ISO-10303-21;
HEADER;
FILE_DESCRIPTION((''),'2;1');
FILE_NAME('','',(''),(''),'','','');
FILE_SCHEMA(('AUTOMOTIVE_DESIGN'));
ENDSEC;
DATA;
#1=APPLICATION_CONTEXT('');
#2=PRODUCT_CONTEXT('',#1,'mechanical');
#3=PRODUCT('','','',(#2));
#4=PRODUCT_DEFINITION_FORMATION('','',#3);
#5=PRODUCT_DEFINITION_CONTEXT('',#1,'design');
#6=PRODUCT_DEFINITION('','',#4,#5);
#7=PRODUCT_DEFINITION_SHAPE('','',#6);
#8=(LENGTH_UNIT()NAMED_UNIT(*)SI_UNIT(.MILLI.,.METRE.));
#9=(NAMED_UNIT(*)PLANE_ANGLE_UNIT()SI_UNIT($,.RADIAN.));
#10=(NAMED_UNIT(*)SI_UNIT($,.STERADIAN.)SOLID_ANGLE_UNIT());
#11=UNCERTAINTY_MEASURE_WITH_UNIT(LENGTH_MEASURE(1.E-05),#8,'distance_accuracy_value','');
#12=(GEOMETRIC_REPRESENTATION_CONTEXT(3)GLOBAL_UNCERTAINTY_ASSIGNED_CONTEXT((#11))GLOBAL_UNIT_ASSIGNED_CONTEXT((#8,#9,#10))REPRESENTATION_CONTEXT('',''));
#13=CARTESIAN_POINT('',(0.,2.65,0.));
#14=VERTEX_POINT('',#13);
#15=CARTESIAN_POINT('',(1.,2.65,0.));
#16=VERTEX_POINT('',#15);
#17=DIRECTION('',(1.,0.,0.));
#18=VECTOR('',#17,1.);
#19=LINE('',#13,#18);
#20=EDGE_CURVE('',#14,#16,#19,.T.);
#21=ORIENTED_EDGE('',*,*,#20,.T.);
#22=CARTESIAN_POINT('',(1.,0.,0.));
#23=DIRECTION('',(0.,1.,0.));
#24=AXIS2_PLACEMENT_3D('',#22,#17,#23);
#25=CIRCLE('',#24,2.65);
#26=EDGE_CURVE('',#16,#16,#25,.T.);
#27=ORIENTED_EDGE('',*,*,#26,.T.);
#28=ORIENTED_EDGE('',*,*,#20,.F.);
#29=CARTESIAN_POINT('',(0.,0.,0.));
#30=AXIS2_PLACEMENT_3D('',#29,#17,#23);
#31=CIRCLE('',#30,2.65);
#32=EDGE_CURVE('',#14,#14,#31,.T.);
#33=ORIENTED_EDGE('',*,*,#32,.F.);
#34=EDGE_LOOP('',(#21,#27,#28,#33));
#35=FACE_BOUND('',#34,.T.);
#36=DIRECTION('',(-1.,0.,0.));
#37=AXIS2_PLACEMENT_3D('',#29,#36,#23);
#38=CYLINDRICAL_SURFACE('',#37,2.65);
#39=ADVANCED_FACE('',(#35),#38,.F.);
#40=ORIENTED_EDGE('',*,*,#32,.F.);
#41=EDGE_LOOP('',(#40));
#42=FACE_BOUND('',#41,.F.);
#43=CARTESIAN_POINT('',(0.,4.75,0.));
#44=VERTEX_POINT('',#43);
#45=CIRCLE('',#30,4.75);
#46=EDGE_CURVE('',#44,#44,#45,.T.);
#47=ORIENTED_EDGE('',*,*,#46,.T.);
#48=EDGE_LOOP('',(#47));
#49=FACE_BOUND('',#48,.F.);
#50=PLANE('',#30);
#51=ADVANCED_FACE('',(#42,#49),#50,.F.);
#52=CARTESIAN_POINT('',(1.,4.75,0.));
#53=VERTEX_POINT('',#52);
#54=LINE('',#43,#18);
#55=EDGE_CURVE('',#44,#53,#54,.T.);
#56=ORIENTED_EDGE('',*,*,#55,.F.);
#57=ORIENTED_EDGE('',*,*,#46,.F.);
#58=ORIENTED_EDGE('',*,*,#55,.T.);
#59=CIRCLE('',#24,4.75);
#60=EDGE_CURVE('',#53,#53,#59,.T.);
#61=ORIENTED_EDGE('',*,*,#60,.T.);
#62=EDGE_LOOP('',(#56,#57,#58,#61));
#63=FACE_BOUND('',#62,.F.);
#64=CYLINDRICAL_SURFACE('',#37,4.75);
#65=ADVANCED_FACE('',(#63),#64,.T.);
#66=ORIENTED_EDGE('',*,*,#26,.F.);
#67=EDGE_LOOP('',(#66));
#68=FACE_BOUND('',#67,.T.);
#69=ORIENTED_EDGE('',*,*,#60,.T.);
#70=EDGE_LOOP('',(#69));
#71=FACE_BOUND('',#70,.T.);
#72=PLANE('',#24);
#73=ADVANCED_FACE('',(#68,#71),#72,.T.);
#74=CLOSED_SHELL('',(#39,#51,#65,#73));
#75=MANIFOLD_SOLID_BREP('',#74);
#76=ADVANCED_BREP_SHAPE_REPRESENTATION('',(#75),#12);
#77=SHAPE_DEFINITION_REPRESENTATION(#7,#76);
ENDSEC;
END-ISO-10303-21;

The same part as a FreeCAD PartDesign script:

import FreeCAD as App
import Part
import Sketcher

V = App.Vector

doc = App.newDocument("Part")
body = doc.addObject("PartDesign::Body", "Body")

sketch1 = body.newObject("Sketcher::SketchObject", "Sketch")
sketch1.AttachmentSupport = (doc.getObject("YZ_Plane"), [""])
sketch1.MapMode = "FlatFace"
sketch1.addGeometry([
    Part.Circle(V(0, 0, 0), V(0, 0, 1), 4.8),
    Part.Circle(V(0, 0, 0), V(0, 0, 1), 2.6),
], False)
sketch1.addConstraint([
    Sketcher.Constraint("Coincident", 0, 3, -1, 1),
    Sketcher.Constraint("Coincident", 1, 3, -1, 1),
    Sketcher.Constraint("Diameter", 0, 9.5),
    Sketcher.Constraint("Diameter", 1, 5.3),
])
pad1 = body.newObject("PartDesign::Pad", "Pad")
pad1.Profile = sketch1
pad1.Length = 1

doc.recompute()
